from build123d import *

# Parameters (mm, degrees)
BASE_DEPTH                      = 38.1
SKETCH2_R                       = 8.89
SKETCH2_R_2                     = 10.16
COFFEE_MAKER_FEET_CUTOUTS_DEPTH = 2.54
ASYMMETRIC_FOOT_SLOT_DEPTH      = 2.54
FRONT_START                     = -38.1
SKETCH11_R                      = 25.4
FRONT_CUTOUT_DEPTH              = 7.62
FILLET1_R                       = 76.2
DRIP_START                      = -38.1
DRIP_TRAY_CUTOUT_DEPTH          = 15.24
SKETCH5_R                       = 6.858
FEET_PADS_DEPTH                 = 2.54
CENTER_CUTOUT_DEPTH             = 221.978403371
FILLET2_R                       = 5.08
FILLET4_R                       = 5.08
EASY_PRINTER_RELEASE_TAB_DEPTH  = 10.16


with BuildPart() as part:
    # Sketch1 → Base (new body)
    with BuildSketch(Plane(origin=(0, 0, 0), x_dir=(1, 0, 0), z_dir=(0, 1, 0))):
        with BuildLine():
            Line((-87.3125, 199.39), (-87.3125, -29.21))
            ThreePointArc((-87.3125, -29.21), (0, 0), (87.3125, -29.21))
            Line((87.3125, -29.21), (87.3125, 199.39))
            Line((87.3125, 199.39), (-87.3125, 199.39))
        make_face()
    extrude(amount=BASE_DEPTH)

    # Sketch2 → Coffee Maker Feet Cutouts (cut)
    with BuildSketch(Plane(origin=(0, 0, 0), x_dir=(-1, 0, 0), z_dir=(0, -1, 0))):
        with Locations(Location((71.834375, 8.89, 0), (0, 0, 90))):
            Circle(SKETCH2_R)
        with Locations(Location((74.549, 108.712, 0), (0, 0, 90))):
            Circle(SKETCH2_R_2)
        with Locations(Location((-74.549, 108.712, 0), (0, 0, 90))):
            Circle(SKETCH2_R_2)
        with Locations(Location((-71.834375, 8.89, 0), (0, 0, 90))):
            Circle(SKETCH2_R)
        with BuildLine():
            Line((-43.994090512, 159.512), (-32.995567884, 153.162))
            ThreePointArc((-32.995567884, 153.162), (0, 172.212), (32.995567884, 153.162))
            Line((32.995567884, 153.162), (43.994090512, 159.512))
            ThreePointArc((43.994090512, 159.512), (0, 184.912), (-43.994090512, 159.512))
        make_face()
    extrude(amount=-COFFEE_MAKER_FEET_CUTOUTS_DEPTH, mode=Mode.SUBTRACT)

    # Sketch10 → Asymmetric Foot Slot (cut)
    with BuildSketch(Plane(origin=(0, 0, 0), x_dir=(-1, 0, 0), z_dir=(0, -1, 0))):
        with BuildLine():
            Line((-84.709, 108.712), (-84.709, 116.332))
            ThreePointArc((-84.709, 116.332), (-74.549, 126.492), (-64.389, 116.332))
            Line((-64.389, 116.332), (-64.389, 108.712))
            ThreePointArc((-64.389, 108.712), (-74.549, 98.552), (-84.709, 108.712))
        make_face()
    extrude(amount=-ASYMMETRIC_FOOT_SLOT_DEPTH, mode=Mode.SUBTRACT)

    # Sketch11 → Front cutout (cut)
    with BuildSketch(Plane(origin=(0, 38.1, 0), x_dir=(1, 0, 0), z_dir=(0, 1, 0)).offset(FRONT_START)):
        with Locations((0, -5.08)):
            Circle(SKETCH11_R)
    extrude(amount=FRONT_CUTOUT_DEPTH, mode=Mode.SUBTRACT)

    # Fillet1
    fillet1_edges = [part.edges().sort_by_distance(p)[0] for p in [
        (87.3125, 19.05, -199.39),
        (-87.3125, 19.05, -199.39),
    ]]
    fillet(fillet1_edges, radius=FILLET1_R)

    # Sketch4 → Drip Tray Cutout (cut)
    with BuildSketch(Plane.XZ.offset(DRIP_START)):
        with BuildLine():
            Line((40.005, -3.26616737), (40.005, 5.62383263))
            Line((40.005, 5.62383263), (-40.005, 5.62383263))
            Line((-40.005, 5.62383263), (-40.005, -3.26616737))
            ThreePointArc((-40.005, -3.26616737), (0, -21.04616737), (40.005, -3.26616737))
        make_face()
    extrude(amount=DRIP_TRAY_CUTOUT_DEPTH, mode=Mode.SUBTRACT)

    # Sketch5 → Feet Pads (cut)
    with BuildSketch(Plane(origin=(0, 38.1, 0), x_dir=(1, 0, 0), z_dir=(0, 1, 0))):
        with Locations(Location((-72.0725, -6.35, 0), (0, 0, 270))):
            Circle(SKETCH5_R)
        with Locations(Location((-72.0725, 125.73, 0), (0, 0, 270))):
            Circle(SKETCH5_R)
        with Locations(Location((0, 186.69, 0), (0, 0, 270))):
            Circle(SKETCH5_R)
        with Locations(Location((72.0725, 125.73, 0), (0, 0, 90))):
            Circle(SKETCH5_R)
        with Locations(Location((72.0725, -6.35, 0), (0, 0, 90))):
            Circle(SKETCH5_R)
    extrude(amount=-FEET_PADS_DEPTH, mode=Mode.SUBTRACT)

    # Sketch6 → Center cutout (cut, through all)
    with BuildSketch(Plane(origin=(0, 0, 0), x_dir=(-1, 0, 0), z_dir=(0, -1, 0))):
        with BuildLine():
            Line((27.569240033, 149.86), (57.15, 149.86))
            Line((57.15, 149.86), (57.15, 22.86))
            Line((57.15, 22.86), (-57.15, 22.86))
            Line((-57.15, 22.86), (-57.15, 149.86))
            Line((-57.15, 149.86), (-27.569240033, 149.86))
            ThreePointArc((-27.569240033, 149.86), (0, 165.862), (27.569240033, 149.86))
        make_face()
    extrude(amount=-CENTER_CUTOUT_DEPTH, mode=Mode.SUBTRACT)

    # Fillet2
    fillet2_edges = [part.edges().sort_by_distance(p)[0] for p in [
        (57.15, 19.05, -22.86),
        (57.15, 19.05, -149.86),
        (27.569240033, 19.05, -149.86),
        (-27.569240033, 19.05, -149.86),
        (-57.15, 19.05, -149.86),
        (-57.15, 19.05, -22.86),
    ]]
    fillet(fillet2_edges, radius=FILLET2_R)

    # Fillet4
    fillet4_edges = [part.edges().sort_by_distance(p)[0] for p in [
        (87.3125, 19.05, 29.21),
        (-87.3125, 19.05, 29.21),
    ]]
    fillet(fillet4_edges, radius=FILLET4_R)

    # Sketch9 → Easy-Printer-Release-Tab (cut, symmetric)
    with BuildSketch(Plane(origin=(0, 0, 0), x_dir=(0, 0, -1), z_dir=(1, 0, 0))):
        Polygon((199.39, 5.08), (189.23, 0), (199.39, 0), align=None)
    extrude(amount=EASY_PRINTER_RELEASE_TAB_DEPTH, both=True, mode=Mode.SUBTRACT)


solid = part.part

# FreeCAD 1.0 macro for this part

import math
import FreeCAD as App
import Part
import Sketcher
from FreeCAD import Vector
Q = App.Units.Quantity


def edges_at(feature, points):
    """Names of the edges that pass closest to the given points."""
    edges = feature.Shape.Edges
    near = lambda p: min(range(len(edges)), key=lambda i: edges[i].distToShape(Part.Vertex(*p))[0])
    return sorted({f"Edge{near(p) + 1}" for p in points})

doc = App.newDocument("Part")
body = doc.addObject("PartDesign::Body", "Body")

sketch1 = body.newObject("Sketcher::SketchObject", "Sketch")
sketch1.AttachmentSupport = (doc.getObject("XZ_Plane"), [""])
sketch1.MapMode = "FlatFace"
sketch1.addGeometry([
    Part.LineSegment(Vector(-87, -199, 0), Vector(-87, 29, 0)),
    Part.ArcOfCircle(Part.Circle(Vector(0, 145, 0), Vector(0, 0, 1), 145), math.radians(-127), math.radians(-53)),
    Part.LineSegment(Vector(87, 29, 0), Vector(87, -199, 0)),
    Part.LineSegment(Vector(87, -199, 0), Vector(-87, -199, 0)),
], False)
sketch1.addConstraint([
    Sketcher.Constraint("Coincident", 0, 2, 1, 1),
    Sketcher.Constraint("Coincident", 1, 2, 2, 1),
    Sketcher.Constraint("Coincident", 2, 2, 3, 1),
    Sketcher.Constraint("Coincident", 3, 2, 0, 1),
    Sketcher.Constraint("Vertical", 0),
    Sketcher.Constraint("Vertical", 2),
    Sketcher.Constraint("Horizontal", 3),
    Sketcher.Constraint("Symmetric", 0, 2, 1, 2, -2),
    Sketcher.Constraint("DistanceY", 0, 1, 0, 2, Q("9 in")),
    Sketcher.Constraint("DistanceX", 3, 2, 3, 1, Q("6.875 in")),
    Sketcher.Constraint("DistanceY", -1, 1, 0, 2, Q("1.15 in")),
    Sketcher.Constraint("Radius", 1, Q("145.099226 mm")),
])
pad1 = body.newObject("PartDesign::Pad", "Pad")
pad1.Profile = sketch1
pad1.Length = Q("1.5 in")
pad1.Reversed = True

sketch2 = body.newObject("Sketcher::SketchObject", "Sketch001")
sketch2.AttachmentSupport = (doc.getObject("XZ_Plane"), [""])
sketch2.MapMode = "FlatFace"
sketch2.addGeometry([
    Part.Circle(Vector(-72, -9, 0), Vector(0, 0, 1), 9),
    Part.Circle(Vector(-75, -109, 0), Vector(0, 0, 1), 10),
    Part.Circle(Vector(75, -109, 0), Vector(0, 0, 1), 10),
    Part.Circle(Vector(72, -9, 0), Vector(0, 0, 1), 9),
    Part.LineSegment(Vector(44, -160, 0), Vector(33, -153, 0)),
    Part.ArcOfCircle(Part.Circle(Vector(0, -134, 0), Vector(0, 0, 1), 38), math.radians(-150), math.radians(-30)),
    Part.LineSegment(Vector(-33, -153, 0), Vector(-44, -160, 0)),
    Part.ArcOfCircle(Part.Circle(Vector(0, -134, 0), Vector(0, 0, 1), 51), math.radians(-150), math.radians(-30)),
], False)
sketch2.addConstraint([
    Sketcher.Constraint("Coincident", 4, 2, 5, 2),
    Sketcher.Constraint("Coincident", 5, 1, 6, 1),
    Sketcher.Constraint("Coincident", 6, 2, 7, 1),
    Sketcher.Constraint("Coincident", 7, 2, 4, 1),
    Sketcher.Constraint("Coincident", 7, 3, 5, 3),
    Sketcher.Constraint("Equal", 1, 2),
    Sketcher.Constraint("Equal", 0, 3),
    Sketcher.Constraint("Symmetric", 1, 3, 2, 3, -2),
    Sketcher.Constraint("Symmetric", 0, 3, 3, 3, -2),
    Sketcher.Constraint("Symmetric", 4, 2, 5, 1, -2),
    Sketcher.Constraint("Horizontal", 6, 2, 7, 2),
    Sketcher.Constraint("Radius", 7, Q("2 in")),
    Sketcher.Constraint("Diameter", 0, Q("0.7 in")),
    Sketcher.Constraint("Diameter", 1, Q("0.8 in")),
    Sketcher.Constraint("Radius", 5, Q("1.5 in")),
    Sketcher.Constraint("Angle", 4, Q("150 deg")),
    Sketcher.Constraint("DistanceY", 5, 3, 1, 3, Q("1 in")),
    Sketcher.Constraint("DistanceY", 6, 2, 5, 3, Q("1 in")),
    Sketcher.Constraint("DistanceY", 0, 3, -1, 1, Q("0.35 in")),
    Sketcher.Constraint("DistanceY", 1, 3, -1, 1, Q("4.28 in")),
    Sketcher.Constraint("DistanceX", 1, 3, 2, 3, Q("5.87 in")),
    Sketcher.Constraint("DistanceX", 0, 3, -1, 1, Q("2.828125 in")),
])
pocket1 = body.newObject("PartDesign::Pocket", "Pocket")
pocket1.Profile = sketch2
pocket1.Length = Q("0.1 in")

sketch3 = body.newObject("Sketcher::SketchObject", "Sketch002")
sketch3.AttachmentSupport = (doc.getObject("XZ_Plane"), [""])
sketch3.MapMode = "FlatFace"
sketch3.addGeometry([
    Part.LineSegment(Vector(85, -116, 0), Vector(85, -109, 0)),
    Part.ArcOfCircle(Part.Circle(Vector(75, -109, 0), Vector(0, 0, 1), 10), math.radians(0), math.radians(180)),
    Part.LineSegment(Vector(64, -109, 0), Vector(64, -116, 0)),
    Part.ArcOfCircle(Part.Circle(Vector(75, -116, 0), Vector(0, 0, 1), 10), math.radians(180), math.radians(360)),
], False)
sketch3.addConstraint([
    Sketcher.Constraint("Tangent", 0, 2, 1, 1),
    Sketcher.Constraint("Tangent", 1, 2, 2, 1),
    Sketcher.Constraint("Tangent", 2, 2, 3, 1),
    Sketcher.Constraint("Tangent", 3, 2, 0, 1),
    Sketcher.Constraint("Vertical", 0),
    Sketcher.Constraint("Vertical", 2),
    Sketcher.Constraint("Radius", 1, Q("0.4 in")),
    Sketcher.Constraint("DistanceY", 0, 1, 0, 2, Q("0.3 in")),
    Sketcher.Constraint("DistanceY", 1, 3, -1, 1, Q("4.28 in")),
    Sketcher.Constraint("DistanceX", -1, 1, 1, 3, Q("2.935 in")),
])
pocket2 = body.newObject("PartDesign::Pocket", "Pocket001")
pocket2.Profile = sketch3
pocket2.Length = Q("0.1 in")

sketch4 = body.newObject("Sketcher::SketchObject", "Sketch003")
sketch4.AttachmentSupport = (doc.getObject("XZ_Plane"), [""])
sketch4.MapMode = "FlatFace"
sketch4.addGeometry(Part.Circle(Vector(0, 5, 0), Vector(0, 0, 1), 25), False)
sketch4.addConstraint([
    Sketcher.Constraint("PointOnObject", 0, 3, -2),
    Sketcher.Constraint("Diameter", 0, Q("2 in")),
    Sketcher.Constraint("DistanceY", -1, 1, 0, 3, Q("0.2 in")),
])
pocket3 = body.newObject("PartDesign::Pocket", "Pocket002")
pocket3.Profile = sketch4
pocket3.Length = Q("0.3 in")
doc.recompute()

fillet = body.newObject("PartDesign::Fillet", "Fillet")
fillet.Base = (pocket3, edges_at(pocket3, [(87.312, 19.05, -199.39), (-87.312, 19.05, -199.39)]))
fillet.Radius = Q("3 in")

sketch5 = body.newObject("Sketcher::SketchObject", "Sketch004")
sketch5.AttachmentSupport = (doc.getObject("XZ_Plane"), [""])
sketch5.MapMode = "FlatFace"
sketch5.AttachmentOffset = App.Placement(Vector(0, 0, -1.5 * 25.4), App.Rotation())
sketch5.addGeometry([
    Part.LineSegment(Vector(40, -3, 0), Vector(40, 6, 0)),
    Part.LineSegment(Vector(40, 6, 0), Vector(-40, 6, 0)),
    Part.LineSegment(Vector(-40, 6, 0), Vector(-40, -3, 0)),
    Part.ArcOfCircle(Part.Circle(Vector(0, 33, 0), Vector(0, 0, 1), 54), math.radians(-138), math.radians(-42)),
], False)
sketch5.addConstraint([
    Sketcher.Constraint("Coincident", 0, 2, 1, 1),
    Sketcher.Constraint("Coincident", 1, 2, 2, 1),
    Sketcher.Constraint("Coincident", 2, 2, 3, 1),
    Sketcher.Constraint("Coincident", 3, 2, 0, 1),
    Sketcher.Constraint("Vertical", 0),
    Sketcher.Constraint("Horizontal", 1),
    Sketcher.Constraint("Vertical", 2),
    Sketcher.Constraint("Symmetric", 2, 2, 3, 2, -2),
    Sketcher.Constraint("DistanceX", 1, 2, 1, 1, Q("3.15 in")),
    Sketcher.Constraint("DistanceY", 0, 1, 0, 2, Q("0.35 in")),
    Sketcher.Constraint("DistanceY", 2, 2, 3, 3, Q("1.421875 in")),
    Sketcher.Constraint("DistanceY", -1, 1, 3, 3, Q("32.849458 mm")),
])
pocket4 = body.newObject("PartDesign::Pocket", "Pocket003")
pocket4.Profile = sketch5
pocket4.Length = Q("0.6 in")
pocket4.Reversed = True

sketch6 = body.newObject("Sketcher::SketchObject", "Sketch005")
sketch6.AttachmentSupport = (doc.getObject("XZ_Plane"), [""])
sketch6.MapMode = "FlatFace"
sketch6.AttachmentOffset = App.Placement(Vector(0, 0, -1.5 * 25.4), App.Rotation())
sketch6.addGeometry([
    Part.Circle(Vector(-72, 6, 0), Vector(0, 0, 1), 7),
    Part.Circle(Vector(-72, -126, 0), Vector(0, 0, 1), 7),
    Part.Circle(Vector(0, -187, 0), Vector(0, 0, 1), 7),
    Part.Circle(Vector(72, -126, 0), Vector(0, 0, 1), 7),
    Part.Circle(Vector(72, 6, 0), Vector(0, 0, 1), 7),
], False)
sketch6.addConstraint([
    Sketcher.Constraint("Equal", 0, 1),
    Sketcher.Constraint("Equal", 1, 2),
    Sketcher.Constraint("Equal", 2, 3),
    Sketcher.Constraint("Equal", 3, 4),
    Sketcher.Constraint("Symmetric", 1, 3, 3, 3, -2),
    Sketcher.Constraint("Symmetric", 0, 3, 4, 3, -2),
    Sketcher.Constraint("PointOnObject", 2, 3, -2),
    Sketcher.Constraint("Vertical", 0, 3, 1, 3),
    Sketcher.Constraint("Diameter", 0, Q("0.54 in")),
    Sketcher.Constraint("DistanceY", 1, 3, 0, 3, Q("5.2 in")),
    Sketcher.Constraint("DistanceY", 2, 3, 1, 3, Q("2.4 in")),
    Sketcher.Constraint("DistanceY", -1, 1, 0, 3, Q("0.25 in")),
    Sketcher.Constraint("DistanceX", 1, 3, 3, 3, Q("5.675 in")),
])
pocket5 = body.newObject("PartDesign::Pocket", "Pocket004")
pocket5.Profile = sketch6
pocket5.Length = Q("0.1 in")
pocket5.Reversed = True

sketch7 = body.newObject("Sketcher::SketchObject", "Sketch006")
sketch7.AttachmentSupport = (doc.getObject("XZ_Plane"), [""])
sketch7.MapMode = "FlatFace"
sketch7.addGeometry([
    Part.LineSegment(Vector(-57, -150, 0), Vector(-28, -150, 0)),
    Part.ArcOfCircle(Part.Circle(Vector(0, -134, 0), Vector(0, 0, 1), 32), math.radians(-150), math.radians(-30)),
    Part.LineSegment(Vector(28, -150, 0), Vector(57, -150, 0)),
    Part.LineSegment(Vector(57, -150, 0), Vector(57, -23, 0)),
    Part.LineSegment(Vector(57, -23, 0), Vector(-57, -23, 0)),
    Part.LineSegment(Vector(-57, -23, 0), Vector(-57, -150, 0)),
], False)
sketch7.addConstraint([
    Sketcher.Constraint("Coincident", 0, 2, 1, 1),
    Sketcher.Constraint("Coincident", 1, 2, 2, 1),
    Sketcher.Constraint("Coincident", 2, 2, 3, 1),
    Sketcher.Constraint("Coincident", 3, 2, 4, 1),
    Sketcher.Constraint("Coincident", 4, 2, 5, 1),
    Sketcher.Constraint("Coincident", 5, 2, 0, 1),
    Sketcher.Constraint("Horizontal", 0),
    Sketcher.Constraint("Horizontal", 2),
    Sketcher.Constraint("Vertical", 3),
    Sketcher.Constraint("Horizontal", 4),
    Sketcher.Constraint("Vertical", 5),
    Sketcher.Constraint("Symmetric", 0, 2, 1, 2, -2),
    Sketcher.Constraint("Equal", 0, 2),
    Sketcher.Constraint("DistanceY", 3, 1, 3, 2, Q("5 in")),
    Sketcher.Constraint("Radius", 1, Q("1.25 in")),
    Sketcher.Constraint("DistanceX", 4, 2, 4, 1, Q("4.5 in")),
    Sketcher.Constraint("DistanceY", 0, 2, -1, 1, Q("5.9 in")),
    Sketcher.Constraint("DistanceY", 1, 3, -1, 1, Q("5.28 in")),
])
pocket6 = body.newObject("PartDesign::Pocket", "Pocket005")
pocket6.Profile = sketch7
pocket6.Type = "ThroughAll"
doc.recompute()

fillet2 = body.newObject("PartDesign::Fillet", "Fillet001")
fillet2.Base = (pocket6, edges_at(pocket6, [
    (57.15, 19.05, -22.86),
    (57.15, 19.05, -149.86),
    (27.569, 19.05, -149.86),
    (-27.569, 19.05, -149.86),
    (-57.15, 19.05, -149.86),
    (-57.15, 19.05, -22.86),
]))
fillet2.Radius = Q("0.2 in")
doc.recompute()

fillet3 = body.newObject("PartDesign::Fillet", "Fillet002")
fillet3.Base = (fillet2, edges_at(fillet2, [(87.312, 19.05, 29.21), (-87.312, 19.05, 29.21)]))
fillet3.Radius = Q("0.2 in")

sketch8 = body.newObject("Sketcher::SketchObject", "Sketch007")
sketch8.AttachmentSupport = (doc.getObject("YZ_Plane"), [""])
sketch8.MapMode = "FlatFace"
sketch8.addGeometry([
    Part.LineSegment(Vector(5, -199, 0), Vector(0, -189, 0)),
    Part.LineSegment(Vector(0, -189, 0), Vector(0, -199, 0)),
    Part.LineSegment(Vector(0, -199, 0), Vector(5, -199, 0)),
], False)
sketch8.addConstraint([
    Sketcher.Constraint("Coincident", 0, 2, 1, 1),
    Sketcher.Constraint("Coincident", 1, 2, 2, 1),
    Sketcher.Constraint("Coincident", 2, 2, 0, 1),
    Sketcher.Constraint("Vertical", 1),
    Sketcher.Constraint("Horizontal", 2),
    Sketcher.Constraint("PointOnObject", 0, 2, -2),
    Sketcher.Constraint("DistanceX", 2, 1, 2, 2, Q("0.2 in")),
    Sketcher.Constraint("DistanceY", 1, 2, 1, 1, Q("0.4 in")),
    Sketcher.Constraint("DistanceY", 0, 2, -1, 1, Q("7.45 in")),
])
pocket7 = body.newObject("PartDesign::Pocket", "Pocket006")
pocket7.Profile = sketch8
pocket7.Length = Q("0.8 in")
pocket7.Midplane = True

doc.recompute()
